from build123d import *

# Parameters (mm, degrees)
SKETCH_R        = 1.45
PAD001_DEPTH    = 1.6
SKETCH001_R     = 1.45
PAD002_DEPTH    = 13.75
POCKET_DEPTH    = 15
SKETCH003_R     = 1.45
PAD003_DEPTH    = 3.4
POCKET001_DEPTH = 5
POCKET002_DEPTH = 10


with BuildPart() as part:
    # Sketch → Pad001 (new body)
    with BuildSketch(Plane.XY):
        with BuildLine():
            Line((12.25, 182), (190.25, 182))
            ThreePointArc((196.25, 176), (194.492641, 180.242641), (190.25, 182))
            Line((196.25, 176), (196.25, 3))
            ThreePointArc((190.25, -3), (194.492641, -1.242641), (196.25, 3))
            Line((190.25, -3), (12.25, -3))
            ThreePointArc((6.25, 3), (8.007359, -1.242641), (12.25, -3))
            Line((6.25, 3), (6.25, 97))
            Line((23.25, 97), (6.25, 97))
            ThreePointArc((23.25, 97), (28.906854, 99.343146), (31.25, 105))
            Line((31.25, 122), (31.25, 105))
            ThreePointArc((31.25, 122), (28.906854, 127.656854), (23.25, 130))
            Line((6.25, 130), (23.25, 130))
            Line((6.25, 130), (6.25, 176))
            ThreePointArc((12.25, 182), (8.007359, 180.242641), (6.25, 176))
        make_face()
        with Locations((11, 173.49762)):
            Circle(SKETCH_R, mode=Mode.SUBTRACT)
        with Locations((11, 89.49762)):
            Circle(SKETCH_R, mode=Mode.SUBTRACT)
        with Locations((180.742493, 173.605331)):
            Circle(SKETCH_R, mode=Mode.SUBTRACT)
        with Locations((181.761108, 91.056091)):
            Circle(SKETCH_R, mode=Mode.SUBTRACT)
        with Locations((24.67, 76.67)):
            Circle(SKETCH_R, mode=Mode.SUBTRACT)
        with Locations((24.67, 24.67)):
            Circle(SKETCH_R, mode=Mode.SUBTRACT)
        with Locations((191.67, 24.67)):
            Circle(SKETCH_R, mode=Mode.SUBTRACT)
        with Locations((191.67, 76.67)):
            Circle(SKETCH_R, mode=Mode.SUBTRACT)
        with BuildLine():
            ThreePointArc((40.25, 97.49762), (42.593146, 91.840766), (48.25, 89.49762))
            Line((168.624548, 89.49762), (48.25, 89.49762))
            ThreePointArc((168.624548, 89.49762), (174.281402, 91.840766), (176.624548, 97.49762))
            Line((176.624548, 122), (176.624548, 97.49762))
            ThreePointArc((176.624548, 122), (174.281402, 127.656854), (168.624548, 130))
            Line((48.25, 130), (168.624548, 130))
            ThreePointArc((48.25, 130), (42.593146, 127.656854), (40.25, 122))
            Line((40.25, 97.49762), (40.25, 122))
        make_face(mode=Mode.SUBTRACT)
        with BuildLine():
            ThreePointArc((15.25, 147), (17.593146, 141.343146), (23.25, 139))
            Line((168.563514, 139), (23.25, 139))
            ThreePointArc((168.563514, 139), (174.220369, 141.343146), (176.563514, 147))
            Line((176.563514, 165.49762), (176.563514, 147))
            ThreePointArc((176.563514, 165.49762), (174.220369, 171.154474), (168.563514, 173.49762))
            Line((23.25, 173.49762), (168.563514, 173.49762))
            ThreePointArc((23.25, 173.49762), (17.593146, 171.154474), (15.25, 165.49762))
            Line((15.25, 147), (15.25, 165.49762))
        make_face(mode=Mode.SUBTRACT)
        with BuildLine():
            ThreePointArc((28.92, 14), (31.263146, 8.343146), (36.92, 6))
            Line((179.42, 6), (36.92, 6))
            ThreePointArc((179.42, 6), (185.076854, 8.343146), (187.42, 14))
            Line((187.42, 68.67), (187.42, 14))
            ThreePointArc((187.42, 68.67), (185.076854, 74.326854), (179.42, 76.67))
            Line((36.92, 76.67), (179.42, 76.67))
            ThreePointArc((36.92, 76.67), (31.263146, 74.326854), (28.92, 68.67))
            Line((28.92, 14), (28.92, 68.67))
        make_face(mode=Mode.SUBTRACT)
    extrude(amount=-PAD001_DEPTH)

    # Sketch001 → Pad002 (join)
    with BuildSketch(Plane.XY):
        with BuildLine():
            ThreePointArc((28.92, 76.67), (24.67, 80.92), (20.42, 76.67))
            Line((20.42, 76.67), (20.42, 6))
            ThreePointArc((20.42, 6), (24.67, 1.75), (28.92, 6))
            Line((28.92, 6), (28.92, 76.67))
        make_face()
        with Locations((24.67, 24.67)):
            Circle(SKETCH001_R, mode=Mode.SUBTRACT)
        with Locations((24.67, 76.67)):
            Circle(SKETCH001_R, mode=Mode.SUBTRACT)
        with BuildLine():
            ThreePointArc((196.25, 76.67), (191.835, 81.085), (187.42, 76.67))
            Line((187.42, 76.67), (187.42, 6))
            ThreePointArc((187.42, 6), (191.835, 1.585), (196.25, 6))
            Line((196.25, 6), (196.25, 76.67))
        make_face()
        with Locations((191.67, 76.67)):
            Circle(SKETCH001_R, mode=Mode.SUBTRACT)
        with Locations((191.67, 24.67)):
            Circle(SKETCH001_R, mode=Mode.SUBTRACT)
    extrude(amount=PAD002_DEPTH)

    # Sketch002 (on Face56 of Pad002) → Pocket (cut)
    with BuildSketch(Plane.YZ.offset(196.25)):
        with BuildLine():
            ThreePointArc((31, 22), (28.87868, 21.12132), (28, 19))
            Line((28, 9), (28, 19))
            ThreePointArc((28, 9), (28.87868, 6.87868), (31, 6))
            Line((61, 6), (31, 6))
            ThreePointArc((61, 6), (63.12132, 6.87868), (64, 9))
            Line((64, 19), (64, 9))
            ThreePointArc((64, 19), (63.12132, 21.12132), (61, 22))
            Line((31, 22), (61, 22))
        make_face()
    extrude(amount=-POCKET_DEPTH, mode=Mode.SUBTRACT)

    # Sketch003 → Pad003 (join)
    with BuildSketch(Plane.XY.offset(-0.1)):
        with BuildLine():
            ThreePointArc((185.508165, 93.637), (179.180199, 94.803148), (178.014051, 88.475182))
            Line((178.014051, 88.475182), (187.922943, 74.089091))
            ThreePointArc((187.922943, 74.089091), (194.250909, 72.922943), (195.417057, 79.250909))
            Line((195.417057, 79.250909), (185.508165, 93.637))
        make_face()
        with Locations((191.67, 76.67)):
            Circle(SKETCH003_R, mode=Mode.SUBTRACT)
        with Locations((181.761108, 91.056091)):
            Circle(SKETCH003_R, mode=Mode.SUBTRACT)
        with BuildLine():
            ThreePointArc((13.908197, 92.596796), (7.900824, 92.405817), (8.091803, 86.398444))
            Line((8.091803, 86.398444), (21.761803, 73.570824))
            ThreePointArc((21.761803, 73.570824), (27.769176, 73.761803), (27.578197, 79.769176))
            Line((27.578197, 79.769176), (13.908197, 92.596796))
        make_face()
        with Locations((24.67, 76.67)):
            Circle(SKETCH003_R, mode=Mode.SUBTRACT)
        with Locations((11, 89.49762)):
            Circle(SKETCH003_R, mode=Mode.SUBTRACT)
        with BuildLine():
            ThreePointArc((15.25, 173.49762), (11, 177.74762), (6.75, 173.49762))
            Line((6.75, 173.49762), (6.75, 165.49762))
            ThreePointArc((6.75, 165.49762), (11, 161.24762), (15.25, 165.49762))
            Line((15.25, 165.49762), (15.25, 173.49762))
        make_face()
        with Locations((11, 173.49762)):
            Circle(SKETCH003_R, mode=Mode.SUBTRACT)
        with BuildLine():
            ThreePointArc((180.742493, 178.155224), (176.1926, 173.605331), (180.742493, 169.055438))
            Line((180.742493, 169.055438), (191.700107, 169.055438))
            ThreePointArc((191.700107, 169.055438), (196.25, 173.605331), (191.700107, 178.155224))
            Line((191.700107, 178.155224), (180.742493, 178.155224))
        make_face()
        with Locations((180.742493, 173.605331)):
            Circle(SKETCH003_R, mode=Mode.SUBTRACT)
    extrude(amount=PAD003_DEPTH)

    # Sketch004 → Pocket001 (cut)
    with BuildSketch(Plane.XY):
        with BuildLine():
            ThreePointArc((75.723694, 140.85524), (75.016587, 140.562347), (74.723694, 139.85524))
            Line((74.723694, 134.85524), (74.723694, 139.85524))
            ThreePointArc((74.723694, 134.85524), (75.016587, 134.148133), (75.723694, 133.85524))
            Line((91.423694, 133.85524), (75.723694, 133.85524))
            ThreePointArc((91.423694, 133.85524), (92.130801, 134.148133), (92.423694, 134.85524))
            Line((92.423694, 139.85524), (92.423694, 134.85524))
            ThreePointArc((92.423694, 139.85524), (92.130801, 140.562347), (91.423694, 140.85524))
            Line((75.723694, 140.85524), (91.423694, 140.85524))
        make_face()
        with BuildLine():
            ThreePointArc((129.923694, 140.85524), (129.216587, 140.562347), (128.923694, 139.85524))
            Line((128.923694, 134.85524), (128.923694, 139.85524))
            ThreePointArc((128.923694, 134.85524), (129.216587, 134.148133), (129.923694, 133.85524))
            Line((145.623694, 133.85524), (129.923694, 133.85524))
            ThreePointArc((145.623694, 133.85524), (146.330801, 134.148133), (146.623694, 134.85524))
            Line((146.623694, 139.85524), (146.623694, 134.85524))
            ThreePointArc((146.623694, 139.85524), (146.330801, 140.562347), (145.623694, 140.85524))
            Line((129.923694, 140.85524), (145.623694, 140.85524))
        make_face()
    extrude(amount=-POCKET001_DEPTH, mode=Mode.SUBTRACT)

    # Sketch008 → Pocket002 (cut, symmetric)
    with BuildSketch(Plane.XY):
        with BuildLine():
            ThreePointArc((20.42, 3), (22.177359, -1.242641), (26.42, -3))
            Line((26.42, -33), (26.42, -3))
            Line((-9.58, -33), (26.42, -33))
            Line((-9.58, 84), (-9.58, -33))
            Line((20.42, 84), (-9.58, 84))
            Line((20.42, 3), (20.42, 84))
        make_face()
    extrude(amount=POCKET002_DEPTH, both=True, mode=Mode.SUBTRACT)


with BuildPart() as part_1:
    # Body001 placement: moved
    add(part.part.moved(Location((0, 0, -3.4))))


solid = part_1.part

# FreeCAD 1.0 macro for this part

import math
import FreeCAD as App
import Part
import Sketcher

V = App.Vector

doc = App.newDocument("Part")
params = doc.addObject("Spreadsheet::Sheet", "Params")
for row, (alias, value) in enumerate([
    ("sketch1_radius", "5.999999 mm"),
    ("sketch1_radius2", "8.000001 mm"),
    ("sketch1_diameter", "2.9 mm"),
    ("sketch1_width", "178 mm"),
    ("sketch1_width2", "17 mm"),
    ("pad1_length", "1.6 mm"),
    ("sketch2_diameter", "2.9 mm"),
    ("sketch2_radius", "4.25 mm"),
    ("sketch2_height", "70.67 mm"),
    ("pad2_length", "13.75 mm"),
    ("sketch3_radius", "3.000001 mm"),
    ("sketch3_width", "30 mm"),
    ("sketch3_height", "10 mm"),
    ("pocket1_length", "15 mm"),
    ("sketch4_diameter", "2.9 mm"),
    ("sketch4_height", "8 mm"),
    ("sketch4_radius", "4.25 mm"),
    ("pad3_length", "3.4 mm"),
    ("sketch5_radius", "0.999999 mm"),
    ("sketch5_height", "5 mm"),
    ("sketch5_width", "15.7 mm"),
    ("pocket2_length", "5 mm"),
    ("sketch6_radius", "5.999999 mm"),
    ("sketch6_width", "30 mm"),
    ("sketch6_height", "81 mm"),
    ("pocket3_length", "20 mm"),
], start=1):
    params.set(f"A{row}", alias)
    params.set(f"B{row}", "=" + value)
    params.setAlias(f"B{row}", alias)

body = doc.addObject("PartDesign::Body", "Body")

# Sketch on XY plane
sketch1 = doc.addObject("Sketcher::SketchObject", "Sketch")
body.addObject(sketch1)
sketch1.AttachmentSupport = (doc.XY_Plane, [""])
sketch1.MapMode = "FlatFace"
sketch1.addGeometry(Part.LineSegment(V(190.25, 182, 0), V(12.25, 182, 0)), False)
sketch1.addGeometry(Part.ArcOfCircle(Part.Circle(V(12.249999, 176.000001, 0), V(0, 0, 1), 5.999999), math.radians(89.99999), math.radians(180.00001)), False)
sketch1.addGeometry(Part.LineSegment(V(6.25, 176, 0), V(6.25, 130, 0)), False)
sketch1.addGeometry(Part.LineSegment(V(6.25, 130, 0), V(23.25, 130, 0)), False)
sketch1.addGeometry(Part.ArcOfCircle(Part.Circle(V(23.249999, 121.999999, 0), V(0, 0, 1), 8.000001), math.radians(0.000006), math.radians(89.999994)), False)
sketch1.addGeometry(Part.LineSegment(V(31.25, 122, 0), V(31.25, 105, 0)), False)
sketch1.addGeometry(Part.ArcOfCircle(Part.Circle(V(23.249999, 105.000001, 0), V(0, 0, 1), 8.000001), math.radians(-89.999994), math.radians(-0.000006)), False)
sketch1.addGeometry(Part.LineSegment(V(23.25, 97, 0), V(6.25, 97, 0)), False)
sketch1.addGeometry(Part.LineSegment(V(6.25, 97, 0), V(6.25, 3, 0)), False)
sketch1.addGeometry(Part.ArcOfCircle(Part.Circle(V(12.249999, 2.999999, 0), V(0, 0, 1), 5.999999), math.radians(179.99999), math.radians(270.00001)), False)
sketch1.addGeometry(Part.LineSegment(V(12.25, -3, 0), V(190.25, -3, 0)), False)
sketch1.addGeometry(Part.ArcOfCircle(Part.Circle(V(190.250001, 2.999999, 0), V(0, 0, 1), 5.999999), math.radians(-90.00001), math.radians(0.00001)), False)
sketch1.addGeometry(Part.LineSegment(V(196.25, 3, 0), V(196.25, 176, 0)), False)
sketch1.addGeometry(Part.ArcOfCircle(Part.Circle(V(190.250001, 176.000001, 0), V(0, 0, 1), 5.999999), math.radians(-0.00001), math.radians(90.00001)), False)
sketch1.addGeometry(Part.Circle(V(191.67, 24.67, 0), V(0, 0, 1), 1.45), False)
sketch1.addGeometry(Part.LineSegment(V(28.92, 14, 0), V(28.92, 68.67, 0)), False)
sketch1.addGeometry(Part.ArcOfCircle(Part.Circle(V(36.920001, 68.669999, 0), V(0, 0, 1), 8.000001), math.radians(90.000006), math.radians(179.999994)), False)
sketch1.addGeometry(Part.LineSegment(V(36.92, 76.67, 0), V(179.42, 76.67, 0)), False)
sketch1.addGeometry(Part.ArcOfCircle(Part.Circle(V(179.419999, 68.669999, 0), V(0, 0, 1), 8.000001), math.radians(0.000006), math.radians(89.999994)), False)
sketch1.addGeometry(Part.LineSegment(V(187.42, 68.67, 0), V(187.42, 14, 0)), False)
sketch1.addGeometry(Part.ArcOfCircle(Part.Circle(V(179.419999, 14.000001, 0), V(0, 0, 1), 8.000001), math.radians(-89.999994), math.radians(-0.000006)), False)
sketch1.addGeometry(Part.LineSegment(V(179.42, 6, 0), V(36.92, 6, 0)), False)
sketch1.addGeometry(Part.ArcOfCircle(Part.Circle(V(36.920001, 14.000001, 0), V(0, 0, 1), 8.000001), math.radians(-179.999994), math.radians(-90.000006)), False)
sketch1.addGeometry(Part.Circle(V(191.67, 76.67, 0), V(0, 0, 1), 1.45), False)
sketch1.addGeometry(Part.Circle(V(24.67, 24.67, 0), V(0, 0, 1), 1.45), False)
sketch1.addGeometry(Part.Circle(V(24.67, 76.67, 0), V(0, 0, 1), 1.45), False)
sketch1.addGeometry(Part.Circle(V(11, 89.49762, 0), V(0, 0, 1), 1.45), False)
sketch1.addGeometry(Part.Circle(V(181.761108, 91.056091, 0), V(0, 0, 1), 1.45), False)
sketch1.addGeometry(Part.LineSegment(V(40.25, 97.49762, 0), V(40.25, 122, 0)), False)
sketch1.addGeometry(Part.ArcOfCircle(Part.Circle(V(48.250001, 121.999999, 0), V(0, 0, 1), 8.000001), math.radians(90.000006), math.radians(179.999994)), False)
sketch1.addGeometry(Part.LineSegment(V(48.25, 130, 0), V(168.624548, 130, 0)), False)
sketch1.addGeometry(Part.ArcOfCircle(Part.Circle(V(168.624547, 121.999999, 0), V(0, 0, 1), 8.000001), math.radians(0.000006), math.radians(89.999994)), False)
sketch1.addGeometry(Part.LineSegment(V(176.624548, 122, 0), V(176.624548, 97.49762, 0)), False)
sketch1.addGeometry(Part.ArcOfCircle(Part.Circle(V(168.624547, 97.497621, 0), V(0, 0, 1), 8.000001), math.radians(-89.999994), math.radians(-0.000006)), False)
sketch1.addGeometry(Part.LineSegment(V(168.624548, 89.49762, 0), V(48.25, 89.49762, 0)), False)
sketch1.addGeometry(Part.ArcOfCircle(Part.Circle(V(48.250001, 97.497621, 0), V(0, 0, 1), 8.000001), math.radians(-179.999994), math.radians(-90.000006)), False)
sketch1.addGeometry(Part.Circle(V(180.742493, 173.605331, 0), V(0, 0, 1), 1.45), False)
sketch1.addGeometry(Part.LineSegment(V(15.25, 147, 0), V(15.25, 165.49762, 0)), False)
sketch1.addGeometry(Part.ArcOfCircle(Part.Circle(V(23.250001, 165.497619, 0), V(0, 0, 1), 8.000001), math.radians(90.000006), math.radians(179.999994)), False)
sketch1.addGeometry(Part.LineSegment(V(23.25, 173.49762, 0), V(168.563514, 173.49762, 0)), False)
sketch1.addGeometry(Part.ArcOfCircle(Part.Circle(V(168.563515, 165.497621, 0), V(0, 0, 1), 7.999999), math.radians(-0.000006), math.radians(90.000006)), False)
sketch1.addGeometry(Part.LineSegment(V(176.563514, 165.49762, 0), V(176.563514, 147, 0)), False)
sketch1.addGeometry(Part.ArcOfCircle(Part.Circle(V(168.563515, 146.999999, 0), V(0, 0, 1), 7.999999), math.radians(-90.000006), math.radians(0.000006)), False)
sketch1.addGeometry(Part.LineSegment(V(168.563514, 139, 0), V(23.25, 139, 0)), False)
sketch1.addGeometry(Part.ArcOfCircle(Part.Circle(V(23.250001, 147.000001, 0), V(0, 0, 1), 8.000001), math.radians(-179.999994), math.radians(-90.000006)), False)
sketch1.addGeometry(Part.Circle(V(11, 173.49762, 0), V(0, 0, 1), 1.45), False)
sketch1.addConstraint(Sketcher.Constraint("Tangent", 0, 2, 1, 1))
sketch1.addConstraint(Sketcher.Constraint("Tangent", 1, 2, 2, 1))
sketch1.addConstraint(Sketcher.Constraint("Coincident", 2, 2, 3, 1))
sketch1.addConstraint(Sketcher.Constraint("Tangent", 3, 2, 4, 2))
sketch1.addConstraint(Sketcher.Constraint("Tangent", 4, 1, 5, 1))
sketch1.addConstraint(Sketcher.Constraint("Tangent", 5, 2, 6, 2))
sketch1.addConstraint(Sketcher.Constraint("Tangent", 6, 1, 7, 1))
sketch1.addConstraint(Sketcher.Constraint("Coincident", 7, 2, 8, 1))
sketch1.addConstraint(Sketcher.Constraint("Tangent", 8, 2, 9, 1))
sketch1.addConstraint(Sketcher.Constraint("Tangent", 9, 2, 10, 1))
sketch1.addConstraint(Sketcher.Constraint("Tangent", 10, 2, 11, 1))
sketch1.addConstraint(Sketcher.Constraint("Tangent", 11, 2, 12, 1))
sketch1.addConstraint(Sketcher.Constraint("Tangent", 12, 2, 13, 1))
sketch1.addConstraint(Sketcher.Constraint("Tangent", 13, 2, 0, 1))
sketch1.addConstraint(Sketcher.Constraint("Tangent", 15, 2, 16, 2))
sketch1.addConstraint(Sketcher.Constraint("Tangent", 16, 1, 17, 1))
sketch1.addConstraint(Sketcher.Constraint("Tangent", 17, 2, 18, 2))
sketch1.addConstraint(Sketcher.Constraint("Tangent", 18, 1, 19, 1))
sketch1.addConstraint(Sketcher.Constraint("Tangent", 19, 2, 20, 2))
sketch1.addConstraint(Sketcher.Constraint("Tangent", 20, 1, 21, 1))
sketch1.addConstraint(Sketcher.Constraint("Tangent", 21, 2, 22, 2))
sketch1.addConstraint(Sketcher.Constraint("Tangent", 22, 1, 15, 1))
sketch1.addConstraint(Sketcher.Constraint("Tangent", 28, 2, 29, 2))
sketch1.addConstraint(Sketcher.Constraint("Tangent", 29, 1, 30, 1))
sketch1.addConstraint(Sketcher.Constraint("Tangent", 30, 2, 31, 2))
sketch1.addConstraint(Sketcher.Constraint("Tangent", 31, 1, 32, 1))
sketch1.addConstraint(Sketcher.Constraint("Tangent", 32, 2, 33, 2))
sketch1.addConstraint(Sketcher.Constraint("Tangent", 33, 1, 34, 1))
sketch1.addConstraint(Sketcher.Constraint("Tangent", 34, 2, 35, 2))
sketch1.addConstraint(Sketcher.Constraint("Tangent", 35, 1, 28, 1))
sketch1.addConstraint(Sketcher.Constraint("Tangent", 37, 2, 38, 2))
sketch1.addConstraint(Sketcher.Constraint("Tangent", 38, 1, 39, 1))
sketch1.addConstraint(Sketcher.Constraint("Tangent", 39, 2, 40, 2))
sketch1.addConstraint(Sketcher.Constraint("Tangent", 40, 1, 41, 1))
sketch1.addConstraint(Sketcher.Constraint("Tangent", 41, 2, 42, 2))
sketch1.addConstraint(Sketcher.Constraint("Tangent", 42, 1, 43, 1))
sketch1.addConstraint(Sketcher.Constraint("Tangent", 43, 2, 44, 2))
sketch1.addConstraint(Sketcher.Constraint("Tangent", 44, 1, 37, 1))
sketch1.addConstraint(Sketcher.Constraint("Horizontal", 0))
sketch1.addConstraint(Sketcher.Constraint("Vertical", 2))
sketch1.addConstraint(Sketcher.Constraint("Horizontal", 3))
sketch1.addConstraint(Sketcher.Constraint("Vertical", 5))
sketch1.addConstraint(Sketcher.Constraint("Horizontal", 7))
sketch1.addConstraint(Sketcher.Constraint("Vertical", 8))
sketch1.addConstraint(Sketcher.Constraint("Horizontal", 10))
sketch1.addConstraint(Sketcher.Constraint("Vertical", 12))
sketch1.addConstraint(Sketcher.Constraint("Vertical", 15))
sketch1.addConstraint(Sketcher.Constraint("Horizontal", 17))
sketch1.addConstraint(Sketcher.Constraint("Vertical", 19))
sketch1.addConstraint(Sketcher.Constraint("Horizontal", 21))
sketch1.addConstraint(Sketcher.Constraint("Vertical", 28))
sketch1.addConstraint(Sketcher.Constraint("Horizontal", 30))
sketch1.addConstraint(Sketcher.Constraint("Vertical", 32))
sketch1.addConstraint(Sketcher.Constraint("Horizontal", 34))
sketch1.addConstraint(Sketcher.Constraint("Vertical", 37))
sketch1.addConstraint(Sketcher.Constraint("Horizontal", 39))
sketch1.addConstraint(Sketcher.Constraint("Vertical", 41))
sketch1.addConstraint(Sketcher.Constraint("Horizontal", 43))
sketch1.addConstraint(Sketcher.Constraint("Equal", 4, 6))
sketch1.addConstraint(Sketcher.Constraint("Equal", 1, 9))
sketch1.addConstraint(Sketcher.Constraint("Equal", 9, 11))
sketch1.addConstraint(Sketcher.Constraint("Equal", 11, 13))
sketch1.addConstraint(Sketcher.Constraint("Equal", 6, 16))
sketch1.addConstraint(Sketcher.Constraint("Equal", 16, 18))
sketch1.addConstraint(Sketcher.Constraint("Equal", 18, 20))
sketch1.addConstraint(Sketcher.Constraint("Equal", 20, 22))
sketch1.addConstraint(Sketcher.Constraint("Equal", 14, 23))
sketch1.addConstraint(Sketcher.Constraint("Equal", 23, 24))
sketch1.addConstraint(Sketcher.Constraint("Equal", 24, 25))
sketch1.addConstraint(Sketcher.Constraint("Equal", 25, 26))
sketch1.addConstraint(Sketcher.Constraint("Equal", 26, 27))
sketch1.addConstraint(Sketcher.Constraint("Equal", 22, 29))
sketch1.addConstraint(Sketcher.Constraint("Equal", 29, 31))
sketch1.addConstraint(Sketcher.Constraint("Equal", 31, 33))
sketch1.addConstraint(Sketcher.Constraint("Equal", 33, 35))
sketch1.addConstraint(Sketcher.Constraint("Equal", 27, 36))
sketch1.addConstraint(Sketcher.Constraint("Equal", 35, 38))
sketch1.addConstraint(Sketcher.Constraint("Equal", 38, 40))
sketch1.addConstraint(Sketcher.Constraint("Equal", 40, 42))
sketch1.addConstraint(Sketcher.Constraint("Equal", 42, 44))
sketch1.addConstraint(Sketcher.Constraint("Equal", 36, 45))
sketch1.addConstraint(Sketcher.Constraint("Horizontal", 14, 3, 24, 3))
sketch1.addConstraint(Sketcher.Constraint("Horizontal", 23, 3, 25, 3))
sketch1.addConstraint(Sketcher.Constraint("Horizontal", 4, 3, 29, 3))
sketch1.addConstraint(Sketcher.Constraint("Horizontal", 25, 3, 16, 1))
sketch1.addConstraint(Sketcher.Constraint("Horizontal", 26, 3, 33, 1))
sketch1.addConstraint(Sketcher.Constraint("Horizontal", 45, 3, 38, 1))
sketch1.addConstraint(Sketcher.Constraint("Vertical", 1, 3, 9, 3))
sketch1.addConstraint(Sketcher.Constraint("Vertical", 14, 3, 23, 3))
sketch1.addConstraint(Sketcher.Constraint("Vertical", 24, 3, 25, 3))
sketch1.addConstraint(Sketcher.Constraint("Vertical", 6, 3, 38, 3))
sketch1.addConstraint(Sketcher.Constraint("Vertical", 26, 3, 45, 3))
sketch1.addConstraint(Sketcher.Constraint("Equal", 7, 5))
sketch1.addConstraint(Sketcher.Constraint("Radius", 1, 5.999999))
sketch1.addConstraint(Sketcher.Constraint("Radius", 4, 8.000001))
sketch1.addConstraint(Sketcher.Constraint("Diameter", 14, 2.9))
sketch1.addConstraint(Sketcher.Constraint("DistanceX", 0, 2, 0, 1, 178.0))
sketch1.addConstraint(Sketcher.Constraint("DistanceX", 3, 1, 3, 2, 17.0))
sketch1.addConstraint(Sketcher.Constraint("DistanceY", 2, 2, 2, 1, 46.0))
sketch1.addConstraint(Sketcher.Constraint("DistanceY", 8, 2, 8, 1, 94.0))
sketch1.addConstraint(Sketcher.Constraint("DistanceX", 17, 1, 17, 2, 142.5))
sketch1.addConstraint(Sketcher.Constraint("DistanceY", -1, 1, 1, 3, 176.000001))
sketch1.addConstraint(Sketcher.Constraint("DistanceY", -1, 1, 20, 3, 14.000001))
sketch1.addConstraint(Sketcher.Constraint("DistanceX", -1, 1, 26, 3, 11.0))
sketch1.addConstraint(Sketcher.Constraint("DistanceY", -1, 1, 42, 3, 146.999999))
sketch1.addConstraint(Sketcher.Constraint("DistanceY", 15, 1, 15, 2, 54.67))
sketch1.addConstraint(Sketcher.Constraint("DistanceX", -1, 1, 1, 3, 12.249999))
sketch1.addConstraint(Sketcher.Constraint("DistanceX", -1, 1, 14, 3, 191.67))
sketch1.addConstraint(Sketcher.Constraint("DistanceY", -1, 1, 14, 3, 24.67))
sketch1.addConstraint(Sketcher.Constraint("DistanceX", -1, 1, 16, 3, 36.920001))
sketch1.addConstraint(Sketcher.Constraint("DistanceX", -1, 1, 24, 3, 24.67))
sketch1.addConstraint(Sketcher.Constraint("DistanceX", -1, 1, 29, 3, 48.250001))
sketch1.addConstraint(Sketcher.Constraint("DistanceX", 30, 1, 30, 2, 120.374548))
sketch1.addConstraint(Sketcher.Constraint("DistanceY", 28, 1, 28, 2, 24.50238))
sketch1.addConstraint(Sketcher.Constraint("DistanceY", 37, 1, 37, 2, 18.49762))
sketch1.addConstraint(Sketcher.Constraint("DistanceX", 39, 1, 39, 2, 145.313514))
sketch1.addConstraint(Sketcher.Constraint("DistanceX", -1, 1, 27, 3, 181.761108))
sketch1.addConstraint(Sketcher.Constraint("DistanceY", -1, 1, 27, 3, 91.056091))
sketch1.addConstraint(Sketcher.Constraint("DistanceY", -1, 1, 36, 3, 173.605331))
sketch1.addConstraint(Sketcher.Constraint("DistanceX", -1, 1, 36, 3, 180.742493))
sketch1.setExpression("Constraints[93]", "Params.sketch1_radius")
sketch1.setExpression("Constraints[94]", "Params.sketch1_radius2")
sketch1.setExpression("Constraints[95]", "Params.sketch1_diameter")
sketch1.setExpression("Constraints[96]", "Params.sketch1_width")
sketch1.setExpression("Constraints[97]", "Params.sketch1_width2")
pad1 = doc.addObject("PartDesign::Pad", "Pad")
body.addObject(pad1)
pad1.Profile = sketch1
pad1.setExpression("Length", "Params.pad1_length")
pad1.Reversed = True

# Sketch on XY plane
sketch2 = doc.addObject("Sketcher::SketchObject", "Sketch001")
body.addObject(sketch2)
sketch2.AttachmentSupport = (doc.XY_Plane, [""])
sketch2.MapMode = "FlatFace"
sketch2.addGeometry(Part.ArcOfCircle(Part.Circle(V(24.67, 76.67, 0), V(0, 0, 1), 4.25), math.radians(0), math.radians(180)), False)
sketch2.addGeometry(Part.LineSegment(V(20.42, 76.67, 0), V(20.42, 6, 0)), False)
sketch2.addGeometry(Part.ArcOfCircle(Part.Circle(V(24.67, 6, 0), V(0, 0, 1), 4.25), math.radians(180), math.radians(360)), False)
sketch2.addGeometry(Part.LineSegment(V(28.92, 6, 0), V(28.92, 76.67, 0)), False)
sketch2.addGeometry(Part.Circle(V(24.67, 24.67, 0), V(0, 0, 1), 1.45), False)
sketch2.addGeometry(Part.Circle(V(24.67, 76.67, 0), V(0, 0, 1), 1.45), False)
sketch2.addGeometry(Part.ArcOfCircle(Part.Circle(V(191.835, 76.67, 0), V(0, 0, 1), 4.415), math.radians(0), math.radians(180)), False)
sketch2.addGeometry(Part.LineSegment(V(187.42, 76.67, 0), V(187.42, 6, 0)), False)
sketch2.addGeometry(Part.ArcOfCircle(Part.Circle(V(191.835, 6, 0), V(0, 0, 1), 4.415), math.radians(180), math.radians(360)), False)
sketch2.addGeometry(Part.LineSegment(V(196.25, 6, 0), V(196.25, 76.67, 0)), False)
sketch2.addGeometry(Part.Circle(V(191.67, 24.67, 0), V(0, 0, 1), 1.45), False)
sketch2.addGeometry(Part.Circle(V(191.67, 76.67, 0), V(0, 0, 1), 1.45), False)
sketch2.addConstraint(Sketcher.Constraint("Tangent", 0, 2, 1, 1))
sketch2.addConstraint(Sketcher.Constraint("Tangent", 1, 2, 2, 1))
sketch2.addConstraint(Sketcher.Constraint("Tangent", 2, 2, 3, 1))
sketch2.addConstraint(Sketcher.Constraint("Tangent", 3, 2, 0, 1))
sketch2.addConstraint(Sketcher.Constraint("Tangent", 6, 2, 7, 1))
sketch2.addConstraint(Sketcher.Constraint("Tangent", 7, 2, 8, 1))
sketch2.addConstraint(Sketcher.Constraint("Tangent", 8, 2, 9, 1))
sketch2.addConstraint(Sketcher.Constraint("Tangent", 9, 2, 6, 1))
sketch2.addConstraint(Sketcher.Constraint("Vertical", 1))
sketch2.addConstraint(Sketcher.Constraint("Vertical", 3))
sketch2.addConstraint(Sketcher.Constraint("Vertical", 7))
sketch2.addConstraint(Sketcher.Constraint("Vertical", 9))
sketch2.addConstraint(Sketcher.Constraint("Coincident", 5, 3, 0, 3))
sketch2.addConstraint(Sketcher.Constraint("Equal", 4, 5))
sketch2.addConstraint(Sketcher.Constraint("Equal", 5, 10))
sketch2.addConstraint(Sketcher.Constraint("Equal", 10, 11))
sketch2.addConstraint(Sketcher.Constraint("Horizontal", 5, 3, 6, 3))
sketch2.addConstraint(Sketcher.Constraint("Horizontal", 2, 3, 8, 3))
sketch2.addConstraint(Sketcher.Constraint("Horizontal", 4, 3, 10, 3))
sketch2.addConstraint(Sketcher.Constraint("Horizontal", 6, 3, 11, 3))
sketch2.addConstraint(Sketcher.Constraint("Vertical", 2, 3, 4, 3))
sketch2.addConstraint(Sketcher.Constraint("Vertical", 10, 3, 11, 3))
sketch2.addConstraint(Sketcher.Constraint("Diameter", 4, 2.9))
sketch2.addConstraint(Sketcher.Constraint("Radius", 0, 4.25))
sketch2.addConstraint(Sketcher.Constraint("DistanceY", -1, 1, 2, 3, 6.0))
sketch2.addConstraint(Sketcher.Constraint("Radius", 6, 4.415))
sketch2.addConstraint(Sketcher.Constraint("DistanceY", 4, 3, 0, 3, 52.0))
sketch2.addConstraint(Sketcher.Constraint("DistanceX", 4, 3, 10, 3, 167.0))
sketch2.addConstraint(Sketcher.Constraint("DistanceY", 1, 2, 1, 1, 70.67))
sketch2.addConstraint(Sketcher.Constraint("DistanceX", 3, 2, 6, 2, 158.5))
sketch2.addConstraint(Sketcher.Constraint("DistanceX", -1, 1, 0, 3, 24.67))
sketch2.setExpression("Constraints[22]", "Params.sketch2_diameter")
sketch2.setExpression("Constraints[23]", "Params.sketch2_radius")
sketch2.setExpression("Constraints[28]", "Params.sketch2_height")
pad2 = doc.addObject("PartDesign::Pad", "Pad001")
body.addObject(pad2)
pad2.Profile = sketch2
pad2.setExpression("Length", "Params.pad2_length")

# Sketch on YZ plane
sketch3 = doc.addObject("Sketcher::SketchObject", "Sketch002")
body.addObject(sketch3)
sketch3.AttachmentSupport = (doc.YZ_Plane, [""])
sketch3.MapMode = "FlatFace"
sketch3.AttachmentOffset = App.Placement(V(0, 0, 196.25), App.Rotation())
sketch3.addGeometry(Part.ArcOfCircle(Part.Circle(V(31.000001, 18.999999, 0), V(0, 0, 1), 3.000001), math.radians(90.000022), math.radians(179.999978)), False)
sketch3.addGeometry(Part.LineSegment(V(28, 19, 0), V(28, 9, 0)), False)
sketch3.addGeometry(Part.ArcOfCircle(Part.Circle(V(31.000001, 9.000001, 0), V(0, 0, 1), 3.000001), math.radians(-179.999978), math.radians(-90.000022)), False)
sketch3.addGeometry(Part.LineSegment(V(31, 6, 0), V(61, 6, 0)), False)
sketch3.addGeometry(Part.ArcOfCircle(Part.Circle(V(60.999999, 9.000001, 0), V(0, 0, 1), 3.000001), math.radians(-89.999978), math.radians(-0.000022)), False)
sketch3.addGeometry(Part.LineSegment(V(64, 9, 0), V(64, 19, 0)), False)
sketch3.addGeometry(Part.ArcOfCircle(Part.Circle(V(60.999999, 18.999999, 0), V(0, 0, 1), 3.000001), math.radians(0.000022), math.radians(89.999978)), False)
sketch3.addGeometry(Part.LineSegment(V(61, 22, 0), V(31, 22, 0)), False)
sketch3.addConstraint(Sketcher.Constraint("Tangent", 0, 2, 1, 1))
sketch3.addConstraint(Sketcher.Constraint("Tangent", 1, 2, 2, 1))
sketch3.addConstraint(Sketcher.Constraint("Tangent", 2, 2, 3, 1))
sketch3.addConstraint(Sketcher.Constraint("Tangent", 3, 2, 4, 1))
sketch3.addConstraint(Sketcher.Constraint("Tangent", 4, 2, 5, 1))
sketch3.addConstraint(Sketcher.Constraint("Tangent", 5, 2, 6, 1))
sketch3.addConstraint(Sketcher.Constraint("Tangent", 6, 2, 7, 1))
sketch3.addConstraint(Sketcher.Constraint("Tangent", 7, 2, 0, 1))
sketch3.addConstraint(Sketcher.Constraint("Vertical", 1))
sketch3.addConstraint(Sketcher.Constraint("Horizontal", 3))
sketch3.addConstraint(Sketcher.Constraint("Vertical", 5))
sketch3.addConstraint(Sketcher.Constraint("Horizontal", 7))
sketch3.addConstraint(Sketcher.Constraint("Equal", 0, 2))
sketch3.addConstraint(Sketcher.Constraint("Equal", 2, 4))
sketch3.addConstraint(Sketcher.Constraint("Equal", 4, 6))
sketch3.addConstraint(Sketcher.Constraint("Radius", 0, 3.000001))
sketch3.addConstraint(Sketcher.Constraint("DistanceX", 3, 1, 3, 2, 30.0))
sketch3.addConstraint(Sketcher.Constraint("DistanceY", 1, 2, 1, 1, 10.0))
sketch3.addConstraint(Sketcher.Constraint("DistanceX", -1, 1, 0, 3, 31.000001))
sketch3.addConstraint(Sketcher.Constraint("DistanceY", -1, 1, 0, 3, 18.999999))
sketch3.setExpression("Constraints[15]", "Params.sketch3_radius")
sketch3.setExpression("Constraints[16]", "Params.sketch3_width")
sketch3.setExpression("Constraints[17]", "Params.sketch3_height")
pocket1 = doc.addObject("PartDesign::Pocket", "Pocket")
body.addObject(pocket1)
pocket1.Profile = sketch3
pocket1.setExpression("Length", "Params.pocket1_length")

# Sketch on XY plane
sketch4 = doc.addObject("Sketcher::SketchObject", "Sketch003")
body.addObject(sketch4)
sketch4.AttachmentSupport = (doc.XY_Plane, [""])
sketch4.MapMode = "FlatFace"
sketch4.AttachmentOffset = App.Placement(V(0, 0, -0.1), App.Rotation())
sketch4.addGeometry(Part.ArcOfCircle(Part.Circle(V(181.761108, 91.056091, 0), V(0, 0, 1), 4.549893), math.radians(34.558408), math.radians(214.558408)), False)
sketch4.addGeometry(Part.LineSegment(V(178.014051, 88.475182, 0), V(187.922943, 74.089091, 0)), False)
sketch4.addGeometry(Part.ArcOfCircle(Part.Circle(V(191.67, 76.67, 0), V(0, 0, 1), 4.549893), math.radians(-145.441592), math.radians(34.558408)), False)
sketch4.addGeometry(Part.LineSegment(V(195.417057, 79.250909, 0), V(185.508165, 93.637, 0)), False)
sketch4.addGeometry(Part.Circle(V(191.67, 76.67, 0), V(0, 0, 1), 1.45), False)
sketch4.addGeometry(Part.Circle(V(181.761108, 91.056091, 0), V(0, 0, 1), 1.45), False)
sketch4.addGeometry(Part.ArcOfCircle(Part.Circle(V(11, 89.49762, 0), V(0, 0, 1), 4.25), math.radians(46.820864), math.radians(226.820864)), False)
sketch4.addGeometry(Part.LineSegment(V(8.091803, 86.398444, 0), V(21.761803, 73.570824, 0)), False)
sketch4.addGeometry(Part.ArcOfCircle(Part.Circle(V(24.67, 76.67, 0), V(0, 0, 1), 4.25), math.radians(-133.179136), math.radians(46.820864)), False)
sketch4.addGeometry(Part.LineSegment(V(27.578197, 79.769176, 0), V(13.908197, 92.596796, 0)), False)
sketch4.addGeometry(Part.Circle(V(24.67, 76.67, 0), V(0, 0, 1), 1.45), False)
sketch4.addGeometry(Part.Circle(V(11, 89.49762, 0), V(0, 0, 1), 1.45), False)
sketch4.addGeometry(Part.ArcOfCircle(Part.Circle(V(11, 173.49762, 0), V(0, 0, 1), 4.25), math.radians(0), math.radians(180)), False)
sketch4.addGeometry(Part.LineSegment(V(6.75, 173.49762, 0), V(6.75, 165.49762, 0)), False)
sketch4.addGeometry(Part.ArcOfCircle(Part.Circle(V(11, 165.49762, 0), V(0, 0, 1), 4.25), math.radians(180), math.radians(360)), False)
sketch4.addGeometry(Part.LineSegment(V(15.25, 165.49762, 0), V(15.25, 173.49762, 0)), False)
sketch4.addGeometry(Part.Circle(V(11, 173.49762, 0), V(0, 0, 1), 1.45), False)
sketch4.addGeometry(Part.ArcOfCircle(Part.Circle(V(180.742493, 173.605331, 0), V(0, 0, 1), 4.549893), math.radians(90), math.radians(270)), False)
sketch4.addGeometry(Part.LineSegment(V(180.742493, 169.055438, 0), V(191.700107, 169.055438, 0)), False)
sketch4.addGeometry(Part.ArcOfCircle(Part.Circle(V(191.700107, 173.605331, 0), V(0, 0, 1), 4.549893), math.radians(-90), math.radians(90)), False)
sketch4.addGeometry(Part.LineSegment(V(191.700107, 178.155224, 0), V(180.742493, 178.155224, 0)), False)
sketch4.addGeometry(Part.Circle(V(180.742493, 173.605331, 0), V(0, 0, 1), 1.45), False)
sketch4.addConstraint(Sketcher.Constraint("Tangent", 0, 2, 1, 1))
sketch4.addConstraint(Sketcher.Constraint("Tangent", 1, 2, 2, 1))
sketch4.addConstraint(Sketcher.Constraint("Tangent", 2, 2, 3, 1))
sketch4.addConstraint(Sketcher.Constraint("Tangent", 3, 2, 0, 1))
sketch4.addConstraint(Sketcher.Constraint("Tangent", 6, 2, 7, 1))
sketch4.addConstraint(Sketcher.Constraint("Tangent", 7, 2, 8, 1))
sketch4.addConstraint(Sketcher.Constraint("Tangent", 8, 2, 9, 1))
sketch4.addConstraint(Sketcher.Constraint("Tangent", 9, 2, 6, 1))
sketch4.addConstraint(Sketcher.Constraint("Tangent", 12, 2, 13, 1))
sketch4.addConstraint(Sketcher.Constraint("Tangent", 13, 2, 14, 1))
sketch4.addConstraint(Sketcher.Constraint("Tangent", 14, 2, 15, 1))
sketch4.addConstraint(Sketcher.Constraint("Tangent", 15, 2, 12, 1))
sketch4.addConstraint(Sketcher.Constraint("Tangent", 17, 2, 18, 1))
sketch4.addConstraint(Sketcher.Constraint("Tangent", 18, 2, 19, 1))
sketch4.addConstraint(Sketcher.Constraint("Tangent", 19, 2, 20, 1))
sketch4.addConstraint(Sketcher.Constraint("Tangent", 20, 2, 17, 1))
sketch4.addConstraint(Sketcher.Constraint("Vertical", 13))
sketch4.addConstraint(Sketcher.Constraint("Vertical", 15))
sketch4.addConstraint(Sketcher.Constraint("Horizontal", 18))
sketch4.addConstraint(Sketcher.Constraint("Horizontal", 20))
sketch4.addConstraint(Sketcher.Constraint("Coincident", 4, 3, 2, 3))
sketch4.addConstraint(Sketcher.Constraint("Coincident", 5, 3, 0, 3))
sketch4.addConstraint(Sketcher.Constraint("Coincident", 10, 3, 8, 3))
sketch4.addConstraint(Sketcher.Constraint("Coincident", 11, 3, 6, 3))
sketch4.addConstraint(Sketcher.Constraint("Coincident", 16, 3, 12, 3))
sketch4.addConstraint(Sketcher.Constraint("Coincident", 21, 3, 17, 3))
sketch4.addConstraint(Sketcher.Constraint("Equal", 0, 2))
sketch4.addConstraint(Sketcher.Constraint("Equal", 4, 5))
sketch4.addConstraint(Sketcher.Constraint("Equal", 6, 8))
sketch4.addConstraint(Sketcher.Constraint("Equal", 5, 10))
sketch4.addConstraint(Sketcher.Constraint("Equal", 10, 11))
sketch4.addConstraint(Sketcher.Constraint("Equal", 8, 12))
sketch4.addConstraint(Sketcher.Constraint("Equal", 11, 16))
sketch4.addConstraint(Sketcher.Constraint("Equal", 2, 17))
sketch4.addConstraint(Sketcher.Constraint("Equal", 16, 21))
sketch4.addConstraint(Sketcher.Constraint("Horizontal", 4, 3, 8, 3))
sketch4.addConstraint(Sketcher.Constraint("Vertical", 11, 3, 12, 3))
sketch4.addConstraint(Sketcher.Constraint("Diameter", 4, 2.9))
sketch4.addConstraint(Sketcher.Constraint("DistanceY", 13, 2, 13, 1, 8.0))
sketch4.addConstraint(Sketcher.Constraint("Radius", 6, 4.25))
sketch4.addConstraint(Sketcher.Constraint("DistanceX", -1, 1, 6, 3, 11.0))
sketch4.addConstraint(Sketcher.Constraint("DistanceX", 8, 3, 2, 3, 167.0))
sketch4.addConstraint(Sketcher.Constraint("DistanceY", 6, 3, 12, 3, 84.0))
sketch4.addConstraint(Sketcher.Constraint("DistanceX", -1, 1, 2, 3, 191.67))
sketch4.addConstraint(Sketcher.Constraint("DistanceY", -1, 1, 2, 3, 76.67))
sketch4.addConstraint(Sketcher.Constraint("DistanceY", -1, 1, 3, 2, 93.637))
sketch4.addConstraint(Sketcher.Constraint("Radius", 0, 4.549893))
sketch4.addConstraint(Sketcher.Constraint("DistanceX", 0, 3, 19, 3, 9.938999))
sketch4.addConstraint(Sketcher.Constraint("Distance", 1, 17.468422))
sketch4.addConstraint(Sketcher.Constraint("DistanceX", 18, 1, 18, 2, 10.957614))
sketch4.addConstraint(Sketcher.Constraint("DistanceY", -1, 1, 6, 3, 89.49762))
sketch4.addConstraint(Sketcher.Constraint("DistanceY", -1, 1, 17, 3, 173.605331))
sketch4.setExpression("Constraints[37]", "Params.sketch4_diameter")
sketch4.setExpression("Constraints[38]", "Params.sketch4_height")
sketch4.setExpression("Constraints[39]", "Params.sketch4_radius")
pad3 = doc.addObject("PartDesign::Pad", "Pad002")
body.addObject(pad3)
pad3.Profile = sketch4
pad3.setExpression("Length", "Params.pad3_length")

# Sketch on XY plane
sketch5 = doc.addObject("Sketcher::SketchObject", "Sketch004")
body.addObject(sketch5)
sketch5.AttachmentSupport = (doc.XY_Plane, [""])
sketch5.MapMode = "FlatFace"
sketch5.addGeometry(Part.ArcOfCircle(Part.Circle(V(75.723693, 139.855241, 0), V(0, 0, 1), 0.999999), math.radians(89.999957), math.radians(180.000043)), False)
sketch5.addGeometry(Part.LineSegment(V(74.723694, 139.85524, 0), V(74.723694, 134.85524, 0)), False)
sketch5.addGeometry(Part.ArcOfCircle(Part.Circle(V(75.723693, 134.855239, 0), V(0, 0, 1), 0.999999), math.radians(179.999957), math.radians(270.000043)), False)
sketch5.addGeometry(Part.LineSegment(V(75.723694, 133.85524, 0), V(91.423694, 133.85524, 0)), False)
sketch5.addGeometry(Part.ArcOfCircle(Part.Circle(V(91.423695, 134.855239, 0), V(0, 0, 1), 0.999999), math.radians(-90.000043), math.radians(0.000043)), False)
sketch5.addGeometry(Part.LineSegment(V(92.423694, 134.85524, 0), V(92.423694, 139.85524, 0)), False)
sketch5.addGeometry(Part.ArcOfCircle(Part.Circle(V(91.423695, 139.855241, 0), V(0, 0, 1), 0.999999), math.radians(-0.000043), math.radians(90.000043)), False)
sketch5.addGeometry(Part.LineSegment(V(91.423694, 140.85524, 0), V(75.723694, 140.85524, 0)), False)
sketch5.addGeometry(Part.ArcOfCircle(Part.Circle(V(129.923693, 139.855241, 0), V(0, 0, 1), 0.999999), math.radians(89.999957), math.radians(180.000043)), False)
sketch5.addGeometry(Part.LineSegment(V(128.923694, 139.85524, 0), V(128.923694, 134.85524, 0)), False)
sketch5.addGeometry(Part.ArcOfCircle(Part.Circle(V(129.923693, 134.855239, 0), V(0, 0, 1), 0.999999), math.radians(179.999957), math.radians(270.000043)), False)
sketch5.addGeometry(Part.LineSegment(V(129.923694, 133.85524, 0), V(145.623694, 133.85524, 0)), False)
sketch5.addGeometry(Part.ArcOfCircle(Part.Circle(V(145.623695, 134.855239, 0), V(0, 0, 1), 0.999999), math.radians(-90.000043), math.radians(0.000043)), False)
sketch5.addGeometry(Part.LineSegment(V(146.623694, 134.85524, 0), V(146.623694, 139.85524, 0)), False)
sketch5.addGeometry(Part.ArcOfCircle(Part.Circle(V(145.623695, 139.855241, 0), V(0, 0, 1), 0.999999), math.radians(-0.000043), math.radians(90.000043)), False)
sketch5.addGeometry(Part.LineSegment(V(145.623694, 140.85524, 0), V(129.923694, 140.85524, 0)), False)
sketch5.addConstraint(Sketcher.Constraint("Tangent", 0, 2, 1, 1))
sketch5.addConstraint(Sketcher.Constraint("Tangent", 1, 2, 2, 1))
sketch5.addConstraint(Sketcher.Constraint("Tangent", 2, 2, 3, 1))
sketch5.addConstraint(Sketcher.Constraint("Tangent", 3, 2, 4, 1))
sketch5.addConstraint(Sketcher.Constraint("Tangent", 4, 2, 5, 1))
sketch5.addConstraint(Sketcher.Constraint("Tangent", 5, 2, 6, 1))
sketch5.addConstraint(Sketcher.Constraint("Tangent", 6, 2, 7, 1))
sketch5.addConstraint(Sketcher.Constraint("Tangent", 7, 2, 0, 1))
sketch5.addConstraint(Sketcher.Constraint("Tangent", 8, 2, 9, 1))
sketch5.addConstraint(Sketcher.Constraint("Tangent", 9, 2, 10, 1))
sketch5.addConstraint(Sketcher.Constraint("Tangent", 10, 2, 11, 1))
sketch5.addConstraint(Sketcher.Constraint("Tangent", 11, 2, 12, 1))
sketch5.addConstraint(Sketcher.Constraint("Tangent", 12, 2, 13, 1))
sketch5.addConstraint(Sketcher.Constraint("Tangent", 13, 2, 14, 1))
sketch5.addConstraint(Sketcher.Constraint("Tangent", 14, 2, 15, 1))
sketch5.addConstraint(Sketcher.Constraint("Tangent", 15, 2, 8, 1))
sketch5.addConstraint(Sketcher.Constraint("Vertical", 1))
sketch5.addConstraint(Sketcher.Constraint("Horizontal", 3))
sketch5.addConstraint(Sketcher.Constraint("Vertical", 5))
sketch5.addConstraint(Sketcher.Constraint("Horizontal", 7))
sketch5.addConstraint(Sketcher.Constraint("Vertical", 9))
sketch5.addConstraint(Sketcher.Constraint("Horizontal", 11))
sketch5.addConstraint(Sketcher.Constraint("Vertical", 13))
sketch5.addConstraint(Sketcher.Constraint("Horizontal", 15))
sketch5.addConstraint(Sketcher.Constraint("Equal", 0, 2))
sketch5.addConstraint(Sketcher.Constraint("Equal", 2, 4))
sketch5.addConstraint(Sketcher.Constraint("Equal", 4, 6))
sketch5.addConstraint(Sketcher.Constraint("Equal", 6, 8))
sketch5.addConstraint(Sketcher.Constraint("Equal", 8, 10))
sketch5.addConstraint(Sketcher.Constraint("Equal", 10, 12))
sketch5.addConstraint(Sketcher.Constraint("Equal", 12, 14))
sketch5.addConstraint(Sketcher.Constraint("Horizontal", 6, 3, 8, 3))
sketch5.addConstraint(Sketcher.Constraint("Horizontal", 4, 3, 10, 3))
sketch5.addConstraint(Sketcher.Constraint("Equal", 7, 11))
sketch5.addConstraint(Sketcher.Constraint("Radius", 0, 0.999999))
sketch5.addConstraint(Sketcher.Constraint("DistanceY", 1, 2, 1, 1, 5.0))
sketch5.addConstraint(Sketcher.Constraint("DistanceX", 3, 1, 3, 2, 15.7))
sketch5.addConstraint(Sketcher.Constraint("DistanceX", 6, 3, 8, 3, 38.499999))
sketch5.addConstraint(Sketcher.Constraint("DistanceY", -1, 1, 0, 3, 139.855241))
sketch5.addConstraint(Sketcher.Constraint("DistanceX", -1, 1, 0, 3, 75.723693))
sketch5.setExpression("Constraints[34]", "Params.sketch5_radius")
sketch5.setExpression("Constraints[35]", "Params.sketch5_height")
sketch5.setExpression("Constraints[36]", "Params.sketch5_width")
pocket2 = doc.addObject("PartDesign::Pocket", "Pocket001")
body.addObject(pocket2)
pocket2.Profile = sketch5
pocket2.setExpression("Length", "Params.pocket2_length")

# Sketch on XY plane
sketch6 = doc.addObject("Sketcher::SketchObject", "Sketch005")
body.addObject(sketch6)
sketch6.AttachmentSupport = (doc.XY_Plane, [""])
sketch6.MapMode = "FlatFace"
sketch6.addGeometry(Part.ArcOfCircle(Part.Circle(V(26.419999, 2.999999, 0), V(0, 0, 1), 5.999999), math.radians(179.99999), math.radians(270.00001)), False)
sketch6.addGeometry(Part.LineSegment(V(20.42, 3, 0), V(20.42, 84, 0)), False)
sketch6.addGeometry(Part.LineSegment(V(20.42, 84, 0), V(-9.58, 84, 0)), False)
sketch6.addGeometry(Part.LineSegment(V(-9.58, 84, 0), V(-9.58, -33, 0)), False)
sketch6.addGeometry(Part.LineSegment(V(-9.58, -33, 0), V(26.42, -33, 0)), False)
sketch6.addGeometry(Part.LineSegment(V(26.42, -33, 0), V(26.42, -3, 0)), False)
sketch6.addConstraint(Sketcher.Constraint("Tangent", 0, 1, 1, 1))
sketch6.addConstraint(Sketcher.Constraint("Coincident", 1, 2, 2, 1))
sketch6.addConstraint(Sketcher.Constraint("Coincident", 2, 2, 3, 1))
sketch6.addConstraint(Sketcher.Constraint("Coincident", 3, 2, 4, 1))
sketch6.addConstraint(Sketcher.Constraint("Coincident", 4, 2, 5, 1))
sketch6.addConstraint(Sketcher.Constraint("Coincident", 5, 2, 0, 2))
sketch6.addConstraint(Sketcher.Constraint("Vertical", 1))
sketch6.addConstraint(Sketcher.Constraint("Horizontal", 2))
sketch6.addConstraint(Sketcher.Constraint("Vertical", 3))
sketch6.addConstraint(Sketcher.Constraint("Horizontal", 4))
sketch6.addConstraint(Sketcher.Constraint("Vertical", 5))
sketch6.addConstraint(Sketcher.Constraint("Vertical", 0, 3, 4, 2))
sketch6.addConstraint(Sketcher.Constraint("Equal", 2, 5))
sketch6.addConstraint(Sketcher.Constraint("Radius", 0, 5.999999))
sketch6.addConstraint(Sketcher.Constraint("DistanceX", 2, 2, 2, 1, 30.0))
sketch6.addConstraint(Sketcher.Constraint("DistanceY", 1, 1, 1, 2, 81.0))
sketch6.addConstraint(Sketcher.Constraint("DistanceY", -1, 1, 0, 3, 2.999999))
sketch6.addConstraint(Sketcher.Constraint("DistanceX", -1, 1, 0, 3, 26.419999))
sketch6.setExpression("Constraints[13]", "Params.sketch6_radius")
sketch6.setExpression("Constraints[14]", "Params.sketch6_width")
sketch6.setExpression("Constraints[15]", "Params.sketch6_height")
pocket3 = doc.addObject("PartDesign::Pocket", "Pocket002")
body.addObject(pocket3)
pocket3.Profile = sketch6
pocket3.setExpression("Length", "Params.pocket3_length")
pocket3.Midplane = True
body2 = doc.addObject("PartDesign::Body", "Body001")
doc.recompute()

body.Placement = App.Placement(V(0, 0, -3.4), App.Rotation(V(0, 0, 1), 0))
boolean = doc.addObject("PartDesign::Boolean", "Boolean")
body2.addObject(boolean)
boolean.Type = "Fuse"
boolean.addObjects([body])

doc.recompute()
